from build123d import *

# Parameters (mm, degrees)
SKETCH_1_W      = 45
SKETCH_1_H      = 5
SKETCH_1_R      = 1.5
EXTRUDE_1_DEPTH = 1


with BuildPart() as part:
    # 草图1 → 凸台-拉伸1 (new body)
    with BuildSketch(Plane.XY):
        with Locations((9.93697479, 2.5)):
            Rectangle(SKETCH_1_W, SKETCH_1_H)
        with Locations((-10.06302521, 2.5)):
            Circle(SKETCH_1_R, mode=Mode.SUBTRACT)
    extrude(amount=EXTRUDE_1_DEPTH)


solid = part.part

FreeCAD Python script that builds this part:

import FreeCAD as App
import Part
import Sketcher
Q = App.Units.Quantity

doc = App.newDocument("Part")
params = doc.addObject("Spreadsheet::Sheet", "Params")
for row, (alias, value) in enumerate([
    ("sketch1_diameter", "3 mm"),
    ("sketch1_width", "45 mm"),
    ("sketch1_height", "5 mm"),
    ("pad1_length", "1 mm"),
], start=1):
    params.set(f"A{row}", alias)
    params.set(f"B{row}", "=" + value)
    params.setAlias(f"B{row}", alias)

body = doc.addObject("PartDesign::Body", "Body")

# Sketch on XY plane
sketch1 = doc.addObject("Sketcher::SketchObject", "Sketch")
body.addObject(sketch1)
sketch1.AttachmentSupport = (doc.XY_Plane, [""])
sketch1.MapMode = "FlatFace"
sketch1.addGeometry([
    Part.LineSegment(App.Vector(-12.6, 5, 0), App.Vector(-12.6, 0, 0)),  # 0
    Part.LineSegment(App.Vector(-12.6, 0, 0), App.Vector(32.4, 0, 0)),  # 1
    Part.LineSegment(App.Vector(32.4, 0, 0), App.Vector(32.4, 5, 0)),  # 2
    Part.LineSegment(App.Vector(32.4, 5, 0), App.Vector(-12.6, 5, 0)),  # 3
    Part.Circle(App.Vector(-10.1, 2.5, 0), App.Vector(0, 0, 1), 1.5),  # 4
], False)
sketch1.addConstraint([
    Sketcher.Constraint("Coincident", 0, 2, 1, 1),
    Sketcher.Constraint("Coincident", 1, 2, 2, 1),
    Sketcher.Constraint("Coincident", 2, 2, 3, 1),
    Sketcher.Constraint("Coincident", 3, 2, 0, 1),
    Sketcher.Constraint("Vertical", 0),
    Sketcher.Constraint("Horizontal", 1),
    Sketcher.Constraint("Vertical", 2),
    Sketcher.Constraint("Horizontal", 3),
    Sketcher.Constraint("PointOnObject", 0, 2, -1),
    Sketcher.Constraint("Diameter", 4, Q("3 mm")),
    Sketcher.Constraint("DistanceX", 1, 1, 1, 2, Q("45 mm")),
    Sketcher.Constraint("DistanceY", 0, 2, 0, 1, Q("5 mm")),
    Sketcher.Constraint("DistanceY", -1, 1, 4, 3, Q("2.5 mm")),
    Sketcher.Constraint("DistanceX", 0, 2, 4, 3, Q("2.5 mm")),
    Sketcher.Constraint("DistanceX", 4, 3, -1, 1, Q("10.063025 mm")),
])
sketch1.setExpression("Constraints[9]", "Params.sketch1_diameter")
sketch1.setExpression("Constraints[10]", "Params.sketch1_width")
sketch1.setExpression("Constraints[11]", "Params.sketch1_height")
pad1 = doc.addObject("PartDesign::Pad", "Pad")
body.addObject(pad1)
pad1.Profile = sketch1
pad1.setExpression("Length", "Params.pad1_length")

doc.recompute()
